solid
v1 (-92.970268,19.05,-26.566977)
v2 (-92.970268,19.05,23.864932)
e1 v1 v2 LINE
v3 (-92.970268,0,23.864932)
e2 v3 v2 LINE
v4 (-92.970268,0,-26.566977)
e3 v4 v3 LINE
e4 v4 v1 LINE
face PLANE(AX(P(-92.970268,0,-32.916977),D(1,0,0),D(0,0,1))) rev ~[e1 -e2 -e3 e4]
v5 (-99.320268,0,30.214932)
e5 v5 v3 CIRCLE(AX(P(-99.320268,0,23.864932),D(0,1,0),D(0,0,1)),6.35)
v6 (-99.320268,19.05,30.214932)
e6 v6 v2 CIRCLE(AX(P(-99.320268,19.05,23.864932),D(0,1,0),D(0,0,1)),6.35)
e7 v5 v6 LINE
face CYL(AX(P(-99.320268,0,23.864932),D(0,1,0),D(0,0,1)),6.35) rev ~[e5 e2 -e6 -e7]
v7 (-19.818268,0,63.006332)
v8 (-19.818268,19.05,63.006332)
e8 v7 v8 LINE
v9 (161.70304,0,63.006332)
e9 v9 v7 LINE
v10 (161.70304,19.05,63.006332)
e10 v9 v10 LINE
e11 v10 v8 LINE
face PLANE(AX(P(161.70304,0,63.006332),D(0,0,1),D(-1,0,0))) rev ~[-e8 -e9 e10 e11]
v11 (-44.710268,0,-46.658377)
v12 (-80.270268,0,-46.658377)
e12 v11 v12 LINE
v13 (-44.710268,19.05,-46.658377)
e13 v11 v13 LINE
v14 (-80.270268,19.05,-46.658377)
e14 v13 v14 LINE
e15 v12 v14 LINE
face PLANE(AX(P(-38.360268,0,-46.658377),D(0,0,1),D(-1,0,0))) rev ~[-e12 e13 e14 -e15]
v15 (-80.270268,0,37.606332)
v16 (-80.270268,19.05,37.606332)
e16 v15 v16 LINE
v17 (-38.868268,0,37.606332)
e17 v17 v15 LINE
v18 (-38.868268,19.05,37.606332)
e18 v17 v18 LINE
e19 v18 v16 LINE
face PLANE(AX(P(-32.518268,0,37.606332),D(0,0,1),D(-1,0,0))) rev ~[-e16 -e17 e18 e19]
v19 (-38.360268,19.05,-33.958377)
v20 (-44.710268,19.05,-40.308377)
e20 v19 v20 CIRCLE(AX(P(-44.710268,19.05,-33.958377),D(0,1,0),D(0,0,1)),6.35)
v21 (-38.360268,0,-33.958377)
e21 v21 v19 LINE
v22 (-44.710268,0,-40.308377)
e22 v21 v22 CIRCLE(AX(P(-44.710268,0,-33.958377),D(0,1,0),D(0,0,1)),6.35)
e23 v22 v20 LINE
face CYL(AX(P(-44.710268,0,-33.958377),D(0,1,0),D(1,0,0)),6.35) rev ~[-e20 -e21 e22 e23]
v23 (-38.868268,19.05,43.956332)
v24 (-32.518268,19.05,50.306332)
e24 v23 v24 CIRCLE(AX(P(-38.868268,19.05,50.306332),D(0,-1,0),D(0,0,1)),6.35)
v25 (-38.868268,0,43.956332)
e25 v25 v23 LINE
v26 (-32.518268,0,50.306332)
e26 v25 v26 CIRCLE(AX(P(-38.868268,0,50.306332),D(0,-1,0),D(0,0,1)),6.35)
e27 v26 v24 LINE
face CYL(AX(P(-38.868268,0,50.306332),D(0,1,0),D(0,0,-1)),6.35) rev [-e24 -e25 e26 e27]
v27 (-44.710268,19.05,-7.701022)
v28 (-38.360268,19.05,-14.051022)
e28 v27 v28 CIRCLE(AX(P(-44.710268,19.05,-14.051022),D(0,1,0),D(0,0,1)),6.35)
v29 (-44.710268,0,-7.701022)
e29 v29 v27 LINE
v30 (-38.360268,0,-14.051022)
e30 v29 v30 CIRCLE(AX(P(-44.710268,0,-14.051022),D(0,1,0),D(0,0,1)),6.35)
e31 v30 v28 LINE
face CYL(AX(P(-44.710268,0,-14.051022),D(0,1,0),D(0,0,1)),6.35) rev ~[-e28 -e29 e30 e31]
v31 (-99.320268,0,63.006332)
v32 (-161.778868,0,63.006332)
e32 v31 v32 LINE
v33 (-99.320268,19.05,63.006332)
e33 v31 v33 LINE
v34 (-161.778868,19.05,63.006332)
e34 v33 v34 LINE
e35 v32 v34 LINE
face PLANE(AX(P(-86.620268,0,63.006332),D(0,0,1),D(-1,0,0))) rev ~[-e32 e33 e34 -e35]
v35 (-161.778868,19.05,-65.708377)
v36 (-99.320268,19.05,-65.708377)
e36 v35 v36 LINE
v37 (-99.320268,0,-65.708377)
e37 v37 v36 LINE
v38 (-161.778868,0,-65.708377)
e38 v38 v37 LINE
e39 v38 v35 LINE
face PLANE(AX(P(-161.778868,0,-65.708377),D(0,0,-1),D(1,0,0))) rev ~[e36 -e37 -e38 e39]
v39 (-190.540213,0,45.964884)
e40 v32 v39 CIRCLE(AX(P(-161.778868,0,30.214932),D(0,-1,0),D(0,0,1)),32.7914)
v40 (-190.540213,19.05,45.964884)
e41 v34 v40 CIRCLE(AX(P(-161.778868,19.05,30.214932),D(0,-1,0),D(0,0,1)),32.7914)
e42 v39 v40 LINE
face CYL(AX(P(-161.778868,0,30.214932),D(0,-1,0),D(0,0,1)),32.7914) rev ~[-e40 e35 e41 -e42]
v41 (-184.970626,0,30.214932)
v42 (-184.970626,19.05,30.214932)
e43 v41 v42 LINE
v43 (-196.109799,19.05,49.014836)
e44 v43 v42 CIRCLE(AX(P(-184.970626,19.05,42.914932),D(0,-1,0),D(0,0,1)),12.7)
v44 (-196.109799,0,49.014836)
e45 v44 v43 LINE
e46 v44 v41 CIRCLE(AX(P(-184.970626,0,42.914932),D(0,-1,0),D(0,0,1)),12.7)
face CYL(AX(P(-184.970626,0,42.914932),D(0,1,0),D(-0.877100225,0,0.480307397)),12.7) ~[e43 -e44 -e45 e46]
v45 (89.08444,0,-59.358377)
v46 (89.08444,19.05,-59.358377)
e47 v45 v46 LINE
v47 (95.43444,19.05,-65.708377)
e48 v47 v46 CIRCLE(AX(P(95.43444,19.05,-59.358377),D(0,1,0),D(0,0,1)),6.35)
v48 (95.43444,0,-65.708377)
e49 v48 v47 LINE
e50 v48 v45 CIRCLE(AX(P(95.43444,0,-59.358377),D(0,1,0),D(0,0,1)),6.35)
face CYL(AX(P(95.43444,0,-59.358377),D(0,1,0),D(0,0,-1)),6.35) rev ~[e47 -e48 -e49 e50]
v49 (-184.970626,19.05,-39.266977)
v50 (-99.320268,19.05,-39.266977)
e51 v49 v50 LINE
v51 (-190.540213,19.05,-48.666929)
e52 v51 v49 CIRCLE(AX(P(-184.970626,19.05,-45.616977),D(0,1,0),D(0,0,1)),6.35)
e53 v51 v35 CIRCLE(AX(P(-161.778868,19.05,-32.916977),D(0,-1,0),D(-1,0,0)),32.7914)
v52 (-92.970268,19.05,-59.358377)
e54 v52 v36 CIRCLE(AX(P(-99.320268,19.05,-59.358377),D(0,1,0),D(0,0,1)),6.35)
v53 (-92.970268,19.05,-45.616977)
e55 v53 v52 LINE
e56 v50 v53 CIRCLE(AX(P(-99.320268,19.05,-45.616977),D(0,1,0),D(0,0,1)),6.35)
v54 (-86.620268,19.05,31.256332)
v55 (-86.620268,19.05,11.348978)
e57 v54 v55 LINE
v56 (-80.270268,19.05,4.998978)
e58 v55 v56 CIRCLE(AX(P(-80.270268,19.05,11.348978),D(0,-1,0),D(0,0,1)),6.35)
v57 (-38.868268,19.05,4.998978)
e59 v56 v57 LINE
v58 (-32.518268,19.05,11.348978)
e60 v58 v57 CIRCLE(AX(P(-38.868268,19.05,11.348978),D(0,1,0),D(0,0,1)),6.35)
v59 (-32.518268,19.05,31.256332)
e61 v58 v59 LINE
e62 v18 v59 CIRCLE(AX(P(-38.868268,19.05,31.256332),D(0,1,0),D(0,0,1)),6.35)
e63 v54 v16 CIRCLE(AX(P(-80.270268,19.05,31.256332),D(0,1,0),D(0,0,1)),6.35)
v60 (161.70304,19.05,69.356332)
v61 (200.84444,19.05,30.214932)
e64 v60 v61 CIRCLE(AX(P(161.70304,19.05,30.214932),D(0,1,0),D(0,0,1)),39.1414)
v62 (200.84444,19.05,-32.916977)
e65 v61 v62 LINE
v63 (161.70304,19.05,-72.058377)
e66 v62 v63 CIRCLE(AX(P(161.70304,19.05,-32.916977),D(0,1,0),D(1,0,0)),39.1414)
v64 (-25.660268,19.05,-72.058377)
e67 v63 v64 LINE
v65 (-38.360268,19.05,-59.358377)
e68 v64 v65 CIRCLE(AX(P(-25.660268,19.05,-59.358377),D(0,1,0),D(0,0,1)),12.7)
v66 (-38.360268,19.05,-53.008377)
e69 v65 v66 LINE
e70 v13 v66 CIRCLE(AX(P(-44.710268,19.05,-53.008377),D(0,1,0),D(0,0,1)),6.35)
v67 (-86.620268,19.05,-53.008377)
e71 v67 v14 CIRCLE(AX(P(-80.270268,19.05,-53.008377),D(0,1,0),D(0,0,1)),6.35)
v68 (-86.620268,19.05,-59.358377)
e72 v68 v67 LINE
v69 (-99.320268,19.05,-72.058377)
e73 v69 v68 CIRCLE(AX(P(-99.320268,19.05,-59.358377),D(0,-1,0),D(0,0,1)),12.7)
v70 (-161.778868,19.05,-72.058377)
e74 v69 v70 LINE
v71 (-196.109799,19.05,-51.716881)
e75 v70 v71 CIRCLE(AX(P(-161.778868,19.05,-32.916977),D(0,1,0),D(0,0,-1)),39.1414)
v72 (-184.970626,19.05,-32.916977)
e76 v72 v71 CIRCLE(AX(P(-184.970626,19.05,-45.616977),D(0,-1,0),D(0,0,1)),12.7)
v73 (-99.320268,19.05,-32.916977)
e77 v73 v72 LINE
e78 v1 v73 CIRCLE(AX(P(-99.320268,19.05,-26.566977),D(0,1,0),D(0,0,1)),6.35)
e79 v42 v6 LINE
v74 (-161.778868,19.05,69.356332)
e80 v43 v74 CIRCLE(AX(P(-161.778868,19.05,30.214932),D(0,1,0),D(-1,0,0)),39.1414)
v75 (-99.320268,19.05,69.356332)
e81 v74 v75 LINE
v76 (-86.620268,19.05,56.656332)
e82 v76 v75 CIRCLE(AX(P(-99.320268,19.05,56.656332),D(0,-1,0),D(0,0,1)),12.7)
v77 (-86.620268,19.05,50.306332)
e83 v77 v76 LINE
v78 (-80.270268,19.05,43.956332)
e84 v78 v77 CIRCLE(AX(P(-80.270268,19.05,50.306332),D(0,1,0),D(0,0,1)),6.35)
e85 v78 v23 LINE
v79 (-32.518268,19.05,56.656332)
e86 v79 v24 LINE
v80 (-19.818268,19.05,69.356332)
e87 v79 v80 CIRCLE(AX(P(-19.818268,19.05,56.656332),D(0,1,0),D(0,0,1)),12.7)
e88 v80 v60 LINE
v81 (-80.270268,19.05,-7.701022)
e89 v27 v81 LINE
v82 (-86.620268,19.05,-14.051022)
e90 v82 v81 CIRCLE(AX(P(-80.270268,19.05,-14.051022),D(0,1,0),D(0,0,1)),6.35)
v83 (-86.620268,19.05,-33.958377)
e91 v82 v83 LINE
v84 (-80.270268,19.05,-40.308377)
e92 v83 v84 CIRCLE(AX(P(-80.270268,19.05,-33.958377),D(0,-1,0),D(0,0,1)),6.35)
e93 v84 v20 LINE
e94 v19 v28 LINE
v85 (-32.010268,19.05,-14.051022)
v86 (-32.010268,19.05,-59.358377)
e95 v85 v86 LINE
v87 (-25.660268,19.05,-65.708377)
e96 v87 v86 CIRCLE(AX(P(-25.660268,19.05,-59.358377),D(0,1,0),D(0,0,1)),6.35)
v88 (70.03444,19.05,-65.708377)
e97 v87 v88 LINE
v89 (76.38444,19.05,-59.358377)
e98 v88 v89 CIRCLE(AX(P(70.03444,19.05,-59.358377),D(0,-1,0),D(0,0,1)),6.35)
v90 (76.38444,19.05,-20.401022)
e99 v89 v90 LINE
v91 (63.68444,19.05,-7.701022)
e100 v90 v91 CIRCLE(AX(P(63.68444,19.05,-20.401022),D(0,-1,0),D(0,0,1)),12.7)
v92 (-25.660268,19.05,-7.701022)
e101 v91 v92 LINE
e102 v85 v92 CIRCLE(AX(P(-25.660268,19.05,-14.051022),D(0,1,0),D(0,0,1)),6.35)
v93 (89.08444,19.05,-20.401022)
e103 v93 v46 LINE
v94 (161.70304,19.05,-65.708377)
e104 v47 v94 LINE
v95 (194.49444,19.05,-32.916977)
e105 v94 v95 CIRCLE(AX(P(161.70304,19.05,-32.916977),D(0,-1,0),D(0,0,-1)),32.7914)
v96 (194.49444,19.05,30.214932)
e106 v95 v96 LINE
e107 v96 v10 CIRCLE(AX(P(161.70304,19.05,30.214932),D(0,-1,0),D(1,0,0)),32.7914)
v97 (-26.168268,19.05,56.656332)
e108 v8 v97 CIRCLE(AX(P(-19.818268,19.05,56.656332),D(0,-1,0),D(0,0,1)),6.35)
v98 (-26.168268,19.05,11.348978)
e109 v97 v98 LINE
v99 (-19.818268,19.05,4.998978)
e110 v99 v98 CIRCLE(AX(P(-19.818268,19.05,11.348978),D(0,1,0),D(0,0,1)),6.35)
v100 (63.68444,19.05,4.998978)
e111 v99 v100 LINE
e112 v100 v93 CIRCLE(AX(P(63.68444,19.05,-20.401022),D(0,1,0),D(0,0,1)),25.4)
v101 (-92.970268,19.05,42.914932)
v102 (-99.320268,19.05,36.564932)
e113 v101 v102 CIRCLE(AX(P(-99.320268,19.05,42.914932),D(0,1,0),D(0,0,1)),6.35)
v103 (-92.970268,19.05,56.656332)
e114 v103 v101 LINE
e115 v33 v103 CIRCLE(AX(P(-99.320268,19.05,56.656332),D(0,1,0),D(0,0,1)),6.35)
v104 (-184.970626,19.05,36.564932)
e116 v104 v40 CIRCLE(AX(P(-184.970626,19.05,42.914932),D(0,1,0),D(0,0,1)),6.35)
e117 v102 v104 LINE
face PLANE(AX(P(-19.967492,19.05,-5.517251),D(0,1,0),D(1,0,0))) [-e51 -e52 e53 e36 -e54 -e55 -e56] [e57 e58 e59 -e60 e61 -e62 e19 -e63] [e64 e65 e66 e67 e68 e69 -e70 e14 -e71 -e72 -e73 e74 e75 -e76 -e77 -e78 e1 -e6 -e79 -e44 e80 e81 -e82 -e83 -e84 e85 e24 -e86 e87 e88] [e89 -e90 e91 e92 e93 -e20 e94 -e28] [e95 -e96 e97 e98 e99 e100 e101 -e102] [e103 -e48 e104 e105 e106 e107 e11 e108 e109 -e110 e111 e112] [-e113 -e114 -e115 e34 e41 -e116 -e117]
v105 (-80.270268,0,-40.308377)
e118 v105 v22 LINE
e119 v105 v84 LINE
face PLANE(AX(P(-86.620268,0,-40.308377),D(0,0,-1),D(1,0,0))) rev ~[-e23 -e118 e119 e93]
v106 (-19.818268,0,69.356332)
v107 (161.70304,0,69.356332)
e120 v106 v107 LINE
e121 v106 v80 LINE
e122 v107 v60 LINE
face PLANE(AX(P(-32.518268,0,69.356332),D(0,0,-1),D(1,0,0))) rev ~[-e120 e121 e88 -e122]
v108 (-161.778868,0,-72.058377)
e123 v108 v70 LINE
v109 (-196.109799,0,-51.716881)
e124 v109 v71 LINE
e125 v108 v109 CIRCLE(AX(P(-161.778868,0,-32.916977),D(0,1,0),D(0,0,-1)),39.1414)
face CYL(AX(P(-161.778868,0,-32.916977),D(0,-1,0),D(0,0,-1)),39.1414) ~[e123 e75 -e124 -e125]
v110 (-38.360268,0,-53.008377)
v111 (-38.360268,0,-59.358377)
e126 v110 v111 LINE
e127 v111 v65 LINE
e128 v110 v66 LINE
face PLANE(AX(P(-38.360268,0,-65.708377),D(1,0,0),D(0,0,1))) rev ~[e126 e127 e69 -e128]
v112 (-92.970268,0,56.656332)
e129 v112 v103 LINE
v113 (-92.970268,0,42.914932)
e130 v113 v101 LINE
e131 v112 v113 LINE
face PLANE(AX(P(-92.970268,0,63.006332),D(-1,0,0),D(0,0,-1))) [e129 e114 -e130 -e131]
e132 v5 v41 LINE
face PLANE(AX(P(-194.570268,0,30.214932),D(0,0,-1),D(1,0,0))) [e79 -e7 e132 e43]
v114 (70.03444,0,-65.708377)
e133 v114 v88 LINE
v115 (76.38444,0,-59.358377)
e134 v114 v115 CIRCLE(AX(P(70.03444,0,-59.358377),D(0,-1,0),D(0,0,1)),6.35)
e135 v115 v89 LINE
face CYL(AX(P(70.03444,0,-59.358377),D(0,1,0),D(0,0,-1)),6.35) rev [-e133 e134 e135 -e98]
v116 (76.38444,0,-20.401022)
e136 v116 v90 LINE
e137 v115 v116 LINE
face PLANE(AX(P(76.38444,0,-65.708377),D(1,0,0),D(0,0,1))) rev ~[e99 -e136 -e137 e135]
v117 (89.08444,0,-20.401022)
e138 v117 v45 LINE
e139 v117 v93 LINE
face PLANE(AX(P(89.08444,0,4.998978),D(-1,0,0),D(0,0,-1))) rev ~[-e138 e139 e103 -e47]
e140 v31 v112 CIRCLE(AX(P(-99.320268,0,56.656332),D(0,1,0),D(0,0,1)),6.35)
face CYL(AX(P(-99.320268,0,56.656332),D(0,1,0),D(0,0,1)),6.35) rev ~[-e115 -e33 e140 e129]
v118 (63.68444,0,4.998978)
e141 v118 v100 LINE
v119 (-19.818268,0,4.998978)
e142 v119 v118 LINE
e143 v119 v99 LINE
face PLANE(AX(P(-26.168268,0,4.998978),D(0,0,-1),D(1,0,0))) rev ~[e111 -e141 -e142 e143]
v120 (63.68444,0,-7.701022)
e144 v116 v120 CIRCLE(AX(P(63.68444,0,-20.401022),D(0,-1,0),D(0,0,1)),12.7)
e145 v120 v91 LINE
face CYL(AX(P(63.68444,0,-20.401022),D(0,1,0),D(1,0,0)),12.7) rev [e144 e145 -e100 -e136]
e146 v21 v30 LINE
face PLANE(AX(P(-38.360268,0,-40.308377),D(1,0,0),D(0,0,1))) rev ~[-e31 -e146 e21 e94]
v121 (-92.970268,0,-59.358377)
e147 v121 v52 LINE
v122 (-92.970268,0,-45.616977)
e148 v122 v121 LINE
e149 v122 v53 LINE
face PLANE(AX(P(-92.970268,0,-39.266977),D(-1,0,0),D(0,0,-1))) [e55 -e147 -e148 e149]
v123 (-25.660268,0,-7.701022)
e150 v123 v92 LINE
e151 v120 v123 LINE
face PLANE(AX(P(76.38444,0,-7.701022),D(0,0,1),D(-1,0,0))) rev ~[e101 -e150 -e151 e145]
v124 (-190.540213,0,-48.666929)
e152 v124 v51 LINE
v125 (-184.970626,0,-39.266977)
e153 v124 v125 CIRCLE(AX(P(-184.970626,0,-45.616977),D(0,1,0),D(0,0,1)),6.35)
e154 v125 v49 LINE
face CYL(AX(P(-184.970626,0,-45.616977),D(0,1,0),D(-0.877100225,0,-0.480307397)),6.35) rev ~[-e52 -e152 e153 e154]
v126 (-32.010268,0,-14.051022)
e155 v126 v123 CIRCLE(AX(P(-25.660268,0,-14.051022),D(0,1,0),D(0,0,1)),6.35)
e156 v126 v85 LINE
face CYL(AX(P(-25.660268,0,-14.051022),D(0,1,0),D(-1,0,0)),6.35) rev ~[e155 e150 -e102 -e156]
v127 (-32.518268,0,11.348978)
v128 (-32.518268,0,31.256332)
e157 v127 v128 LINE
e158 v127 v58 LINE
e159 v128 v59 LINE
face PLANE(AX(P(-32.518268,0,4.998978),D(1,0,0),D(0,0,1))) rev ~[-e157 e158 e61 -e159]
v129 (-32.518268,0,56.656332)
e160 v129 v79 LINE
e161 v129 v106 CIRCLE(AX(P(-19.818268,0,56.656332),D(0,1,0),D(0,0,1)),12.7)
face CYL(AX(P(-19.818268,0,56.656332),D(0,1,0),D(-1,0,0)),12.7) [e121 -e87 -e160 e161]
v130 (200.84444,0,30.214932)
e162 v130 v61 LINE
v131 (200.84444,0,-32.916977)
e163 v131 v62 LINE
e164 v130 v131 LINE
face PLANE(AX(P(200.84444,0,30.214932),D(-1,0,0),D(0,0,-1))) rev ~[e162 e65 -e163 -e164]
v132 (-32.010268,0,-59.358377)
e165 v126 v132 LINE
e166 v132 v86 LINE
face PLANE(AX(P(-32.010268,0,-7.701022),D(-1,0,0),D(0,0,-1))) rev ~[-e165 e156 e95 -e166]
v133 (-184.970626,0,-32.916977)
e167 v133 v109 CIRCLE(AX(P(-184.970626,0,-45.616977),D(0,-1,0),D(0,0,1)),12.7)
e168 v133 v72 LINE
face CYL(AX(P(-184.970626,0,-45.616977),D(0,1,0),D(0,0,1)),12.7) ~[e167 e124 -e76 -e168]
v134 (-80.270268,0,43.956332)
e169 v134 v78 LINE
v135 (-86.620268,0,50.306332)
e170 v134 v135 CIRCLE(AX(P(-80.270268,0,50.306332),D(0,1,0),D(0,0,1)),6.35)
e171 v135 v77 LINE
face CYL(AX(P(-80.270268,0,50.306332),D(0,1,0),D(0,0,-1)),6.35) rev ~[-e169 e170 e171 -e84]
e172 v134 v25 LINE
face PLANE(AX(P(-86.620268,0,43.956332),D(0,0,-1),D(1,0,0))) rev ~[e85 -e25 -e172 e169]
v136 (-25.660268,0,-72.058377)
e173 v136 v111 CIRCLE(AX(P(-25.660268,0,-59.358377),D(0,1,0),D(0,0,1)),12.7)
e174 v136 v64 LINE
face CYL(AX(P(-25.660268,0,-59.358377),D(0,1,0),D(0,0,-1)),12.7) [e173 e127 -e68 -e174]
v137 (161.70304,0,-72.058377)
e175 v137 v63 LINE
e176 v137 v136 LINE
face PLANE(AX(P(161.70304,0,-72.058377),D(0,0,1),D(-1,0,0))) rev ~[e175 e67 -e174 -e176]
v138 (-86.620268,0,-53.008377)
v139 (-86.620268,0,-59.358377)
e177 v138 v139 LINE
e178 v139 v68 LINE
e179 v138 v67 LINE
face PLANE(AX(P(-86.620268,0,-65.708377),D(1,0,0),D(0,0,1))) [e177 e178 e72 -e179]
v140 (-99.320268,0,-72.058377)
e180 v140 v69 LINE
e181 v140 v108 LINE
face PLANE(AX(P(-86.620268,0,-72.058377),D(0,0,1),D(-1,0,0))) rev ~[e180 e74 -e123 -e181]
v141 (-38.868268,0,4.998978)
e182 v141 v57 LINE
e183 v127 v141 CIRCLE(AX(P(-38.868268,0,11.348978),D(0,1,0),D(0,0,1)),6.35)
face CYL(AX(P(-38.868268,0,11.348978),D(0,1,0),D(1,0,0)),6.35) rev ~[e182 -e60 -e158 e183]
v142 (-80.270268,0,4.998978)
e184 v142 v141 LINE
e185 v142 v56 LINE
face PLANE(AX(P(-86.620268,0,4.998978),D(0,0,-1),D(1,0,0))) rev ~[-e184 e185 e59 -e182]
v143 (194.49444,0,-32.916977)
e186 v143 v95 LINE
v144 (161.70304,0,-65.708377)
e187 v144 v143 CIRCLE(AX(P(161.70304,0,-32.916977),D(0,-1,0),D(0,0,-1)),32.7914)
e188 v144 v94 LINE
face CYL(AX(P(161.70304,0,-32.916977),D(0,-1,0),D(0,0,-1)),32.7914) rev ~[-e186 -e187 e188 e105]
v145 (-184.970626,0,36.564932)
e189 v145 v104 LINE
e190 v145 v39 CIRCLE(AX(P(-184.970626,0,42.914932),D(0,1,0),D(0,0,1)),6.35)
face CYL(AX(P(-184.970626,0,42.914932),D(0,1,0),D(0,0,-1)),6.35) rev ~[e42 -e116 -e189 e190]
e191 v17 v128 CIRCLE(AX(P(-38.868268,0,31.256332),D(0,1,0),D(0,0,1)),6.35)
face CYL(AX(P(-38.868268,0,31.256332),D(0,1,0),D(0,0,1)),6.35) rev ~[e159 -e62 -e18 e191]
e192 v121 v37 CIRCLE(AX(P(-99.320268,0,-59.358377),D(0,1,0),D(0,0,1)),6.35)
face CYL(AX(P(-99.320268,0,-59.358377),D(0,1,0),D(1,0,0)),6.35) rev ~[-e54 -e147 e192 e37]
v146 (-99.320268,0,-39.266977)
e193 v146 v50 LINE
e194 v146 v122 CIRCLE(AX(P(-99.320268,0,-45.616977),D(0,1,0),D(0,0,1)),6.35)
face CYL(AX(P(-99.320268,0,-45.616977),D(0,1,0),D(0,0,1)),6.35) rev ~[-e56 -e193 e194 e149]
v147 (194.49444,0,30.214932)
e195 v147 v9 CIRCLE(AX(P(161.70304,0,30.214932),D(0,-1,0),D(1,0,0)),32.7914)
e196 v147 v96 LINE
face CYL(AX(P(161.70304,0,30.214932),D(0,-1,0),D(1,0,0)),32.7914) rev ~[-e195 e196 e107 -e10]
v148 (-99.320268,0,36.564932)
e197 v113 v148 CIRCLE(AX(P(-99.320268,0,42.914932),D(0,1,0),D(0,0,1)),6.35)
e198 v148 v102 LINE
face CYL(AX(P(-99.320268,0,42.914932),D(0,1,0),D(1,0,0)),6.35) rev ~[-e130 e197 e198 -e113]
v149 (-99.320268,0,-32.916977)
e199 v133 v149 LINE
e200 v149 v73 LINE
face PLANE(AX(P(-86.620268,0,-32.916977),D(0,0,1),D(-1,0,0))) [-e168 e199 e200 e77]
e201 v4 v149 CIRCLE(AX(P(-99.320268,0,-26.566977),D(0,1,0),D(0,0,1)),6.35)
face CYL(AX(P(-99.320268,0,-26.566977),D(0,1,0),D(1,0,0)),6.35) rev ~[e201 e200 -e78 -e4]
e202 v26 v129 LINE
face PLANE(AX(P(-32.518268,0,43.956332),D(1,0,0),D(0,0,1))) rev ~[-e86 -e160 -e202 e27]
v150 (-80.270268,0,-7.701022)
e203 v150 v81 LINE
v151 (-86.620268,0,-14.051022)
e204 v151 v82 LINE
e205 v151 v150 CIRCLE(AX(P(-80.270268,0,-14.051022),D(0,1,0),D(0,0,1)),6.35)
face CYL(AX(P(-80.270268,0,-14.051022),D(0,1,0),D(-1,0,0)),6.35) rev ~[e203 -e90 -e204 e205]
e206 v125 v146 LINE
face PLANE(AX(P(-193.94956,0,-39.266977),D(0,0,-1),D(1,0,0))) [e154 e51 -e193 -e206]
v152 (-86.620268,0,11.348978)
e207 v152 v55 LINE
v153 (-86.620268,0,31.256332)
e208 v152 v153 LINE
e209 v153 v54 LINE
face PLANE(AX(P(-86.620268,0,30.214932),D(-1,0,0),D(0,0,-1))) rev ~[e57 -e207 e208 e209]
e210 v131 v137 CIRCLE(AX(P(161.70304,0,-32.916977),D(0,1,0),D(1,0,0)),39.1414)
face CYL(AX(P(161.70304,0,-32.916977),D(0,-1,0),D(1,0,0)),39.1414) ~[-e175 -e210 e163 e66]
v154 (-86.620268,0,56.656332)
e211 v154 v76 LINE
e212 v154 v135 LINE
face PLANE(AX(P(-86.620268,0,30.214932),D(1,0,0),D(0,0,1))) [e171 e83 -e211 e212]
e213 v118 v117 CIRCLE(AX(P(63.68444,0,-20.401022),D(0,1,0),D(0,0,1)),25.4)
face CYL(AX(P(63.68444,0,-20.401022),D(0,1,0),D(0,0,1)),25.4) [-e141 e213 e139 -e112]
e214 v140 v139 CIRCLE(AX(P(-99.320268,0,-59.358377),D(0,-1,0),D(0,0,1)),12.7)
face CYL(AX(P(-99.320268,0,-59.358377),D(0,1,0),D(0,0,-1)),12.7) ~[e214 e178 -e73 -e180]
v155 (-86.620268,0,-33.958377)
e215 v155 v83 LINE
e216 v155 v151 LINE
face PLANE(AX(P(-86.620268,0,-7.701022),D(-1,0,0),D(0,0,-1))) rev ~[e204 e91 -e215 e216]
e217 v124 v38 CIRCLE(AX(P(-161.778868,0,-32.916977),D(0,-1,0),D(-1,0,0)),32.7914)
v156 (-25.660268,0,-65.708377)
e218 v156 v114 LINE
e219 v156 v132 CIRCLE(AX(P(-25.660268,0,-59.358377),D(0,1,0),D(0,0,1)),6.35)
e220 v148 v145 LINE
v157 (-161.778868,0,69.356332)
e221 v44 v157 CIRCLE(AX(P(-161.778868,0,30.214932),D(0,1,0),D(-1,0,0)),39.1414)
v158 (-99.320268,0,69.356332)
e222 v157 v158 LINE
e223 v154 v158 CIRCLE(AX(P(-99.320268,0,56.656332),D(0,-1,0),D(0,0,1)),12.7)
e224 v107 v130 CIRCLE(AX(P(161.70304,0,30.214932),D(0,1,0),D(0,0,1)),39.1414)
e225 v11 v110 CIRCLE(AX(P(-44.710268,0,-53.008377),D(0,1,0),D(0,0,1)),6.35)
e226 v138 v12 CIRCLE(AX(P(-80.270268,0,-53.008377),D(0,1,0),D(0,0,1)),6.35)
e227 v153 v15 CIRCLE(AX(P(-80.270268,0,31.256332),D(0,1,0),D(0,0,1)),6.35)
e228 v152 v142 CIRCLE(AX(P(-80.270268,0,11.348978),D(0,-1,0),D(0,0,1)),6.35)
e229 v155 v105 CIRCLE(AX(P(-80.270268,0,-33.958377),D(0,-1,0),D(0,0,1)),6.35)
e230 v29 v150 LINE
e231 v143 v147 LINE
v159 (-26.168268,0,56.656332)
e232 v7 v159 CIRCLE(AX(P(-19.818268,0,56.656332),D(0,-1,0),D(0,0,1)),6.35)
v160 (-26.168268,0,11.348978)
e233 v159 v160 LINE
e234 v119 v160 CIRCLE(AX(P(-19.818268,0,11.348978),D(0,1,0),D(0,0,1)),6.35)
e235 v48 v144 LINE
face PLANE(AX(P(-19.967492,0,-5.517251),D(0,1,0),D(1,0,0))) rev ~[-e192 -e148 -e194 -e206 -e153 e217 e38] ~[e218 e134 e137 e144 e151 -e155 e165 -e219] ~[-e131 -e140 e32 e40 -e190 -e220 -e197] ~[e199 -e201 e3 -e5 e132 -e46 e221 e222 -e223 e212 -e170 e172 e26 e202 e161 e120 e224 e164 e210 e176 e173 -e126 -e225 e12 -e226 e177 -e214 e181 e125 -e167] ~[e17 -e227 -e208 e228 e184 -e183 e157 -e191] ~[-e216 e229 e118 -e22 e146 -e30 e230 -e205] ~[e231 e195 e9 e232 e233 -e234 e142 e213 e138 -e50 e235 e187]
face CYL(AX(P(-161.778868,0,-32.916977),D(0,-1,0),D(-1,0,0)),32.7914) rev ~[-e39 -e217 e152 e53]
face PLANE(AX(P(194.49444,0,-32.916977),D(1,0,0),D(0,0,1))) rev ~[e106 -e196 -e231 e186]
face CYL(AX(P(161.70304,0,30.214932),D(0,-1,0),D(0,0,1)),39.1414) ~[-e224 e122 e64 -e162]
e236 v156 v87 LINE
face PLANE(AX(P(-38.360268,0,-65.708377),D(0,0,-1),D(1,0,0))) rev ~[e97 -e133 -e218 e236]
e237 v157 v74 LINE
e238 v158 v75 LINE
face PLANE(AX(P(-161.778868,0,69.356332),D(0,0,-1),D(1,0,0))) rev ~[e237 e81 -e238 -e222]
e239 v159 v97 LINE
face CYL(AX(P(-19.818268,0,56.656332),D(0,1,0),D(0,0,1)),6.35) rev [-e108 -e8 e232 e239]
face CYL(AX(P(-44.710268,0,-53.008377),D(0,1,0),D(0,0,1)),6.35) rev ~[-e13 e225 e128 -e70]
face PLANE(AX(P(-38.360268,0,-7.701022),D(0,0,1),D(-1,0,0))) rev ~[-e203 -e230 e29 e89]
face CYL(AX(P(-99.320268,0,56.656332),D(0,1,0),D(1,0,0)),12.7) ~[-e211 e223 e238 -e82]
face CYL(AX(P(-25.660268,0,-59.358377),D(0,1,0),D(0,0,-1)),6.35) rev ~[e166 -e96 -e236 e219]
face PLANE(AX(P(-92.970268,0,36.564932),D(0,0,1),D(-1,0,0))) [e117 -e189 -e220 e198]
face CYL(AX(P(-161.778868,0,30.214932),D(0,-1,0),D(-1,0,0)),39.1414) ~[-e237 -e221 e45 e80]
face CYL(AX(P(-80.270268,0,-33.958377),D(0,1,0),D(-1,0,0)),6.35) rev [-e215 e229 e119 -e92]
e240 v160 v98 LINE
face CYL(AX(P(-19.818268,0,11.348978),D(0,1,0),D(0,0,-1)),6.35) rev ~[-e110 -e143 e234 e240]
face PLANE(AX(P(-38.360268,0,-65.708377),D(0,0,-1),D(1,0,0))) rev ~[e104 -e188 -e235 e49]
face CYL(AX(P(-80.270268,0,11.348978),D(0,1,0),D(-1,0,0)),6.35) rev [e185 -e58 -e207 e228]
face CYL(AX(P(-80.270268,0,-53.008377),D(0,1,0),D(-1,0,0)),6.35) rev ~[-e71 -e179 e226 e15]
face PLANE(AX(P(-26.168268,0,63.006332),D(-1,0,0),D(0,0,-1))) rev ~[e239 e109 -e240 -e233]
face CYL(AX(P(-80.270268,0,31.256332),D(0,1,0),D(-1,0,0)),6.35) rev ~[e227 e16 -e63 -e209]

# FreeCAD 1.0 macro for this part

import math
import FreeCAD as App
import Part
import Sketcher
from FreeCAD import Vector
Q = App.Units.Quantity


def edges_at(feature, points):
    """Names of the edges that pass closest to the given points."""
    edges = feature.Shape.Edges
    near = lambda p: min(range(len(edges)), key=lambda i: edges[i].distToShape(Part.Vertex(*p))[0])
    return sorted({f"Edge{near(p) + 1}" for p in points})

doc = App.newDocument("Part")
body = doc.addObject("PartDesign::Body", "Body")
body.AllowCompound = True

# Sketch on XZ plane
sketch1 = body.newObject("Sketcher::SketchObject", "Sketch")
sketch1.AttachmentSupport = (doc.getObject("XZ_Plane"), [""])
sketch1.MapMode = "FlatFace"
sketch1.addGeometry([
    Part.LineSegment(Vector(-200.920268, -32.916977, 0), Vector(-200.920268, 30.214932, 0)),  # 0
    Part.ArcOfCircle(Part.Circle(Vector(-161.778868, 30.214932, 0), Vector(0, 0, 1), 39.1414), math.radians(90), math.radians(180)),  # 1
    Part.LineSegment(Vector(-161.778868, 69.356332, 0), Vector(-86.620268, 69.356332, 0)),  # 2
    Part.LineSegment(Vector(-86.620268, 69.356332, 0), Vector(-86.620268, 63.006332, 0)),  # 3
    Part.LineSegment(Vector(-86.620268, 63.006332, 0), Vector(-161.778868, 63.006332, 0)),  # 4
    Part.ArcOfCircle(Part.Circle(Vector(-161.778868, 30.214932, 0), Vector(0, 0, 1), 32.7914), math.radians(90), math.radians(180)),  # 5
    Part.LineSegment(Vector(-194.570268, 30.214932, 0), Vector(-194.570268, -32.916977, 0)),  # 6
    Part.ArcOfCircle(Part.Circle(Vector(-161.778868, -32.916977, 0), Vector(0, 0, 1), 32.7914), math.radians(180), math.radians(270)),  # 7
    Part.LineSegment(Vector(-161.778868, -65.708377, 0), Vector(-86.620268, -65.708377, 0)),  # 8
    Part.LineSegment(Vector(-86.620268, -65.708377, 0), Vector(-86.620268, -72.058377, 0)),  # 9
    Part.LineSegment(Vector(-86.620268, -72.058377, 0), Vector(-161.778868, -72.058377, 0)),  # 10
    Part.ArcOfCircle(Part.Circle(Vector(-161.778868, -32.916977, 0), Vector(0, 0, 1), 39.1414), math.radians(180), math.radians(270)),  # 11
], False)
sketch1.addConstraint([
    Sketcher.Constraint("Tangent", 0, 2, 1, 2),
    Sketcher.Constraint("Tangent", 1, 1, 2, 1),
    Sketcher.Constraint("Coincident", 2, 2, 3, 1),
    Sketcher.Constraint("Coincident", 3, 2, 4, 1),
    Sketcher.Constraint("Tangent", 4, 2, 5, 1),
    Sketcher.Constraint("Tangent", 5, 2, 6, 1),
    Sketcher.Constraint("Tangent", 6, 2, 7, 1),
    Sketcher.Constraint("Tangent", 7, 2, 8, 1),
    Sketcher.Constraint("Coincident", 8, 2, 9, 1),
    Sketcher.Constraint("Coincident", 9, 2, 10, 1),
    Sketcher.Constraint("Tangent", 10, 2, 11, 2),
    Sketcher.Constraint("Tangent", 11, 1, 0, 1),
    Sketcher.Constraint("Vertical", 0),
    Sketcher.Constraint("Horizontal", 2),
    Sketcher.Constraint("Vertical", 3),
    Sketcher.Constraint("Horizontal", 4),
    Sketcher.Constraint("Vertical", 6),
    Sketcher.Constraint("Horizontal", 8),
    Sketcher.Constraint("Vertical", 9),
    Sketcher.Constraint("Horizontal", 10),
    Sketcher.Constraint("Coincident", 5, 3, 1, 3),
    Sketcher.Constraint("Coincident", 11, 3, 7, 3),
    Sketcher.Constraint("Equal", 5, 7),
    Sketcher.Constraint("Vertical", 3, 2, 8, 2),
    Sketcher.Constraint("Radius", 1, Q("1.541 in")),
    Sketcher.Constraint("Radius", 5, Q("1.291 in")),
    Sketcher.Constraint("DistanceX", 0, 2, 2, 2, Q("4.5 in")),
    Sketcher.Constraint("DistanceY", 0, 1, 0, 2, Q("63.131908 mm")),
    Sketcher.Constraint("DistanceX", 1, 3, -1, 1, Q("161.778868 mm")),
    Sketcher.Constraint("DistanceY", -1, 1, 1, 3, Q("30.214932 mm")),
])
pad1 = body.newObject("PartDesign::Pad", "Pad")
pad1.Profile = sketch1
pad1.Length = Q("0.75 in")
pad1.Reversed = True

# Sketch on XZ plane
sketch2 = body.newObject("Sketcher::SketchObject", "Sketch001")
sketch2.AttachmentSupport = (doc.getObject("XZ_Plane"), [""])
sketch2.MapMode = "FlatFace"
sketch2.AttachmentOffset = App.Placement(Vector(0, 0, -0.75 * 25.4), App.Rotation())
sketch2.addGeometry([
    Part.LineSegment(Vector(-200.920268, -32.916977, 0), Vector(-200.920268, 30.214932, 0)),
    Part.LineSegment(Vector(-200.920268, 30.214932, 0), Vector(-194.570268, 30.214932, 0)),
    Part.LineSegment(Vector(-194.570268, 30.214932, 0), Vector(-194.570268, -32.916977, 0)),
    Part.LineSegment(Vector(-194.570268, -32.916977, 0), Vector(-200.920268, -32.916977, 0)),
], False)
sketch2.addConstraint([
    Sketcher.Constraint("Coincident", 0, 2, 1, 1),
    Sketcher.Constraint("Coincident", 1, 2, 2, 1),
    Sketcher.Constraint("Coincident", 2, 2, 3, 1),
    Sketcher.Constraint("Coincident", 3, 2, 0, 1),
    Sketcher.Constraint("Vertical", 0),
    Sketcher.Constraint("Horizontal", 1),
    Sketcher.Constraint("Vertical", 2),
    Sketcher.Constraint("Horizontal", 3),
    Sketcher.Constraint("DistanceX", 1, 1, 1, 2, Q("0.25 in")),
    Sketcher.Constraint("DistanceY", 0, 1, 0, 2, Q("63.131908 mm")),
    Sketcher.Constraint("DistanceX", 0, 2, -1, 1, Q("200.920268 mm")),
    Sketcher.Constraint("DistanceY", -1, 1, 0, 2, Q("30.214932 mm")),
])
pocket1 = body.newObject("PartDesign::Pocket", "Pocket")
pocket1.Profile = sketch2
pocket1.Length = Q("0.75 in")
pocket1.Reversed = True

# Sketch on XZ plane
sketch3 = body.newObject("Sketcher::SketchObject", "Sketch002")
sketch3.AttachmentSupport = (doc.getObject("XZ_Plane"), [""])
sketch3.MapMode = "FlatFace"
sketch3.addGeometry([
    Part.LineSegment(Vector(-86.620268, 30.214932, 0), Vector(-194.570268, 30.214932, 0)),  # 0
    Part.ArcOfCircle(Part.Circle(Vector(-161.778868, 30.214932, 0), Vector(0, 0, 1), 32.7914), math.radians(168.834226), math.radians(180)),  # 1
    Part.LineSegment(Vector(-193.94956, 36.564932, 0), Vector(-92.970268, 36.564932, 0)),  # 2
    Part.LineSegment(Vector(-92.970268, 36.564932, 0), Vector(-92.970268, 63.006332, 0)),  # 3
    Part.LineSegment(Vector(-92.970268, 63.006332, 0), Vector(-86.620268, 63.006332, 0)),  # 4
    Part.LineSegment(Vector(-86.620268, 63.006332, 0), Vector(-86.620268, 30.214932, 0)),  # 5
    Part.LineSegment(Vector(-86.620268, -65.708377, 0), Vector(-92.970268, -65.708377, 0)),  # 6
    Part.LineSegment(Vector(-92.970268, -65.708377, 0), Vector(-92.970268, -39.266977, 0)),  # 7
    Part.LineSegment(Vector(-92.970268, -39.266977, 0), Vector(-193.94956, -39.266977, 0)),  # 8
    Part.ArcOfCircle(Part.Circle(Vector(-161.778868, -32.916977, 0), Vector(0, 0, 1), 32.7914), math.radians(180), math.radians(191.165774)),  # 9
    Part.LineSegment(Vector(-194.570268, -32.916977, 0), Vector(-86.620268, -32.916977, 0)),  # 10
    Part.LineSegment(Vector(-86.620268, -32.916977, 0), Vector(-86.620268, -65.708377, 0)),  # 11
], False)
sketch3.addConstraint([
    Sketcher.Constraint("Coincident", 0, 2, 1, 2),
    Sketcher.Constraint("Coincident", 1, 1, 2, 1),
    Sketcher.Constraint("Coincident", 2, 2, 3, 1),
    Sketcher.Constraint("Coincident", 3, 2, 4, 1),
    Sketcher.Constraint("Coincident", 4, 2, 5, 1),
    Sketcher.Constraint("Coincident", 5, 2, 0, 1),
    Sketcher.Constraint("Coincident", 6, 2, 7, 1),
    Sketcher.Constraint("Coincident", 7, 2, 8, 1),
    Sketcher.Constraint("Coincident", 8, 2, 9, 2),
    Sketcher.Constraint("Coincident", 9, 1, 10, 1),
    Sketcher.Constraint("Coincident", 10, 2, 11, 1),
    Sketcher.Constraint("Coincident", 11, 2, 6, 1),
    Sketcher.Constraint("Horizontal", 0),
    Sketcher.Constraint("Horizontal", 2),
    Sketcher.Constraint("Vertical", 3),
    Sketcher.Constraint("Horizontal", 4),
    Sketcher.Constraint("Vertical", 5),
    Sketcher.Constraint("Horizontal", 6),
    Sketcher.Constraint("Vertical", 7),
    Sketcher.Constraint("Horizontal", 8),
    Sketcher.Constraint("Horizontal", 10),
    Sketcher.Constraint("Vertical", 11),
    Sketcher.Constraint("Equal", 1, 9),
    Sketcher.Constraint("Horizontal", 1, 3, 0, 2),
    Sketcher.Constraint("Vertical", 1, 3, 9, 3),
    Sketcher.Constraint("Vertical", 3, 2, 6, 2),
    Sketcher.Constraint("Vertical", 1, 1, 8, 2),
    Sketcher.Constraint("Vertical", 5, 2, 10, 2),
    Sketcher.Constraint("Equal", 3, 7),
    Sketcher.Constraint("Equal", 5, 11),
    Sketcher.Constraint("Radius", 1, Q("1.291 in")),
    Sketcher.Constraint("DistanceX", 0, 2, 2, 2, Q("4 in")),
    Sketcher.Constraint("DistanceX", 0, 2, 0, 1, Q("4.25 in")),
    Sketcher.Constraint("DistanceY", 3, 1, 3, 2, Q("1.041 in")),
    Sketcher.Constraint("DistanceY", 5, 2, 5, 1, Q("1.291 in")),
    Sketcher.Constraint("DistanceX", 1, 3, -1, 1, Q("161.778868 mm")),
    Sketcher.Constraint("DistanceY", -1, 1, 1, 3, Q("30.214932 mm")),
    Sketcher.Constraint("DistanceY", 9, 3, 1, 3, Q("63.131908 mm")),
])
pad2 = body.newObject("PartDesign::Pad", "Pad001")
pad2.Profile = sketch3
pad2.Length = Q("0.75 in")
pad2.Reversed = True
body2 = doc.addObject("PartDesign::Body", "Body001")

# Sketch on XZ plane
sketch4 = body2.newObject("Sketcher::SketchObject", "Sketch003")
sketch4.AttachmentSupport = (doc.getObject("XZ_Plane001"), [""])
sketch4.MapMode = "FlatFace"
sketch4.addGeometry([
    Part.LineSegment(Vector(200.84444, 30.214932, 0), Vector(200.84444, -32.916977, 0)),  # 0
    Part.ArcOfCircle(Part.Circle(Vector(161.70304, -32.916977, 0), Vector(0, 0, 1), 39.1414), math.radians(-90), math.radians(0)),  # 1
    Part.LineSegment(Vector(161.70304, -72.058377, 0), Vector(-38.360268, -72.058377, 0)),  # 2
    Part.LineSegment(Vector(-38.360268, -72.058377, 0), Vector(-38.360268, -65.708377, 0)),  # 3
    Part.LineSegment(Vector(-38.360268, -65.708377, 0), Vector(161.70304, -65.708377, 0)),  # 4
    Part.ArcOfCircle(Part.Circle(Vector(161.70304, -32.916977, 0), Vector(0, 0, 1), 32.7914), math.radians(-90), math.radians(0)),  # 5
    Part.LineSegment(Vector(194.49444, -32.916977, 0), Vector(194.49444, 30.214932, 0)),  # 6
    Part.ArcOfCircle(Part.Circle(Vector(161.70304, 30.214932, 0), Vector(0, 0, 1), 32.7914), math.radians(0), math.radians(90)),  # 7
    Part.LineSegment(Vector(161.70304, 63.006332, 0), Vector(-32.518268, 63.006332, 0)),  # 8
    Part.LineSegment(Vector(-32.518268, 63.006332, 0), Vector(-32.518268, 69.356332, 0)),  # 9
    Part.LineSegment(Vector(-32.518268, 69.356332, 0), Vector(161.70304, 69.356332, 0)),  # 10
    Part.ArcOfCircle(Part.Circle(Vector(161.70304, 30.214932, 0), Vector(0, 0, 1), 39.1414), math.radians(0), math.radians(90)),  # 11
], False)
sketch4.addConstraint([
    Sketcher.Constraint("Tangent", 0, 2, 1, 2),
    Sketcher.Constraint("Tangent", 1, 1, 2, 1),
    Sketcher.Constraint("Coincident", 2, 2, 3, 1),
    Sketcher.Constraint("Coincident", 3, 2, 4, 1),
    Sketcher.Constraint("Tangent", 4, 2, 5, 1),
    Sketcher.Constraint("Tangent", 5, 2, 6, 1),
    Sketcher.Constraint("Tangent", 6, 2, 7, 1),
    Sketcher.Constraint("Tangent", 7, 2, 8, 1),
    Sketcher.Constraint("Coincident", 8, 2, 9, 1),
    Sketcher.Constraint("Coincident", 9, 2, 10, 1),
    Sketcher.Constraint("Tangent", 10, 2, 11, 2),
    Sketcher.Constraint("Tangent", 11, 1, 0, 1),
    Sketcher.Constraint("Vertical", 0),
    Sketcher.Constraint("Horizontal", 2),
    Sketcher.Constraint("Vertical", 3),
    Sketcher.Constraint("Horizontal", 4),
    Sketcher.Constraint("Vertical", 6),
    Sketcher.Constraint("Horizontal", 8),
    Sketcher.Constraint("Vertical", 9),
    Sketcher.Constraint("Horizontal", 10),
    Sketcher.Constraint("Coincident", 5, 3, 1, 3),
    Sketcher.Constraint("Coincident", 11, 3, 7, 3),
    Sketcher.Constraint("Equal", 5, 7),
    Sketcher.Constraint("Radius", 1, Q("1.541 in")),
    Sketcher.Constraint("Radius", 5, Q("1.291 in")),
    Sketcher.Constraint("DistanceX", 3, 2, 8, 2, Q("0.23 in")),
    Sketcher.Constraint("DistanceX", 2, 2, 2, 1, Q("200.063308 mm")),
    Sketcher.Constraint("DistanceY", 0, 2, 0, 1, Q("63.131908 mm")),
    Sketcher.Constraint("DistanceX", -1, 1, 1, 3, Q("161.70304 mm")),
    Sketcher.Constraint("DistanceY", -1, 1, 7, 3, Q("30.214932 mm")),
])
pad3 = body2.newObject("PartDesign::Pad", "Pad002")
pad3.Profile = sketch4
pad3.Length = Q("0.75 in")
pad3.Reversed = True
body.AllowCompound = True
doc.recompute()

boolean = body.newObject("PartDesign::Boolean", "Boolean")
boolean.Type = "Fuse"
boolean.addObjects([body2])

# Sketch on XZ plane
sketch5 = body.newObject("Sketcher::SketchObject", "Sketch004")
sketch5.AttachmentSupport = (doc.getObject("XZ_Plane"), [""])
sketch5.MapMode = "FlatFace"
sketch5.addGeometry([
    Part.LineSegment(Vector(-86.620268, 43.956332, 0), Vector(-32.518268, 43.956332, 0)),  # 0
    Part.LineSegment(Vector(-32.518268, 43.956332, 0), Vector(-32.518268, 63.006332, 0)),  # 1
    Part.LineSegment(Vector(-32.518268, 63.006332, 0), Vector(-26.168268, 63.006332, 0)),  # 2
    Part.LineSegment(Vector(-26.168268, 63.006332, 0), Vector(-26.168268, 4.998978, 0)),  # 3
    Part.LineSegment(Vector(-26.168268, 4.998978, 0), Vector(89.08444, 4.998978, 0)),  # 4
    Part.LineSegment(Vector(89.08444, 4.998978, 0), Vector(89.08444, -65.708377, 0)),  # 5
    Part.LineSegment(Vector(89.08444, -65.708377, 0), Vector(76.38444, -65.708377, 0)),  # 6
    Part.LineSegment(Vector(76.38444, -65.708377, 0), Vector(76.38444, -7.701022, 0)),  # 7
    Part.LineSegment(Vector(76.38444, -7.701022, 0), Vector(-32.010268, -7.701022, 0)),  # 8
    Part.LineSegment(Vector(-32.010268, -7.701022, 0), Vector(-32.010268, -65.708377, 0)),  # 9
    Part.LineSegment(Vector(-32.010268, -65.708377, 0), Vector(-38.360268, -65.708377, 0)),  # 10
    Part.LineSegment(Vector(-38.360268, -65.708377, 0), Vector(-38.360268, -46.658377, 0)),  # 11
    Part.LineSegment(Vector(-38.360268, -46.658377, 0), Vector(-86.620268, -46.658377, 0)),  # 12
    Part.LineSegment(Vector(-86.620268, -46.658377, 0), Vector(-86.620268, -40.308377, 0)),  # 13
    Part.LineSegment(Vector(-86.620268, -40.308377, 0), Vector(-38.360268, -40.308377, 0)),  # 14
    Part.LineSegment(Vector(-38.360268, -40.308377, 0), Vector(-38.360268, -7.701022, 0)),  # 15
    Part.LineSegment(Vector(-38.360268, -7.701022, 0), Vector(-86.620268, -7.701022, 0)),  # 16
    Part.LineSegment(Vector(-86.620268, -7.701022, 0), Vector(-86.620268, -32.916977, 0)),  # 17
    Part.LineSegment(Vector(-86.620268, -32.916977, 0), Vector(-92.970268, -32.916977, 0)),  # 18
    Part.LineSegment(Vector(-92.970268, -32.916977, 0), Vector(-92.970268, 30.214932, 0)),  # 19
    Part.LineSegment(Vector(-92.970268, 30.214932, 0), Vector(-86.620268, 30.214932, 0)),  # 20
    Part.LineSegment(Vector(-86.620268, 30.214932, 0), Vector(-86.620268, 4.998978, 0)),  # 21
    Part.LineSegment(Vector(-86.620268, 4.998978, 0), Vector(-32.518268, 4.998978, 0)),  # 22
    Part.LineSegment(Vector(-32.518268, 4.998978, 0), Vector(-32.518268, 37.606332, 0)),  # 23
    Part.LineSegment(Vector(-32.518268, 37.606332, 0), Vector(-86.620268, 37.606332, 0)),  # 24
    Part.LineSegment(Vector(-86.620268, 37.606332, 0), Vector(-86.620268, 43.956332, 0)),  # 25
], False)
sketch5.addConstraint([
    Sketcher.Constraint("Coincident", 0, 2, 1, 1),
    Sketcher.Constraint("Coincident", 1, 2, 2, 1),
    Sketcher.Constraint("Coincident", 2, 2, 3, 1),
    Sketcher.Constraint("Coincident", 3, 2, 4, 1),
    Sketcher.Constraint("Coincident", 4, 2, 5, 1),
    Sketcher.Constraint("Coincident", 5, 2, 6, 1),
    Sketcher.Constraint("Coincident", 6, 2, 7, 1),
    Sketcher.Constraint("Coincident", 7, 2, 8, 1),
    Sketcher.Constraint("Coincident", 8, 2, 9, 1),
    Sketcher.Constraint("Coincident", 9, 2, 10, 1),
    Sketcher.Constraint("Coincident", 10, 2, 11, 1),
    Sketcher.Constraint("Coincident", 11, 2, 12, 1),
    Sketcher.Constraint("Coincident", 12, 2, 13, 1),
    Sketcher.Constraint("Coincident", 13, 2, 14, 1),
    Sketcher.Constraint("Coincident", 14, 2, 15, 1),
    Sketcher.Constraint("Coincident", 15, 2, 16, 1),
    Sketcher.Constraint("Coincident", 16, 2, 17, 1),
    Sketcher.Constraint("Coincident", 17, 2, 18, 1),
    Sketcher.Constraint("Coincident", 18, 2, 19, 1),
    Sketcher.Constraint("Coincident", 19, 2, 20, 1),
    Sketcher.Constraint("Coincident", 20, 2, 21, 1),
    Sketcher.Constraint("Coincident", 21, 2, 22, 1),
    Sketcher.Constraint("Coincident", 22, 2, 23, 1),
    Sketcher.Constraint("Coincident", 23, 2, 24, 1),
    Sketcher.Constraint("Coincident", 24, 2, 25, 1),
    Sketcher.Constraint("Coincident", 25, 2, 0, 1),
    Sketcher.Constraint("Horizontal", 0),
    Sketcher.Constraint("Vertical", 1),
    Sketcher.Constraint("Horizontal", 2),
    Sketcher.Constraint("Vertical", 3),
    Sketcher.Constraint("Horizontal", 4),
    Sketcher.Constraint("Vertical", 5),
    Sketcher.Constraint("Horizontal", 6),
    Sketcher.Constraint("Vertical", 7),
    Sketcher.Constraint("Horizontal", 8),
    Sketcher.Constraint("Vertical", 9),
    Sketcher.Constraint("Horizontal", 10),
    Sketcher.Constraint("Vertical", 11),
    Sketcher.Constraint("Horizontal", 12),
    Sketcher.Constraint("Vertical", 13),
    Sketcher.Constraint("Horizontal", 14),
    Sketcher.Constraint("Vertical", 15),
    Sketcher.Constraint("Horizontal", 16),
    Sketcher.Constraint("Vertical", 17),
    Sketcher.Constraint("Horizontal", 18),
    Sketcher.Constraint("Vertical", 19),
    Sketcher.Constraint("Horizontal", 20),
    Sketcher.Constraint("Vertical", 21),
    Sketcher.Constraint("Horizontal", 22),
    Sketcher.Constraint("Vertical", 23),
    Sketcher.Constraint("Horizontal", 24),
    Sketcher.Constraint("Vertical", 25),
    Sketcher.Constraint("Horizontal", 6, 2, 9, 2),
    Sketcher.Constraint("Horizontal", 8, 2, 15, 2),
    Sketcher.Constraint("Horizontal", 4, 2, 21, 2),
    Sketcher.Constraint("Vertical", 11, 2, 14, 2),
    Sketcher.Constraint("Vertical", 13, 2, 16, 2),
    Sketcher.Constraint("Vertical", 17, 2, 20, 2),
    Sketcher.Constraint("Vertical", 1, 2, 22, 2),
    Sketcher.Constraint("Vertical", 21, 2, 24, 2),
    Sketcher.Constraint("Equal", 2, 10),
    Sketcher.Constraint("Equal", 10, 18),
    Sketcher.Constraint("Equal", 3, 7),
    Sketcher.Constraint("Equal", 1, 11),
    Sketcher.Constraint("Equal", 20, 13),
    Sketcher.Constraint("Equal", 17, 21),
    Sketcher.Constraint("Equal", 15, 23),
    Sketcher.Constraint("DistanceX", 6, 2, 6, 1, Q("0.5 in")),
    Sketcher.Constraint("DistanceX", 12, 2, 12, 1, Q("1.9 in")),
    Sketcher.Constraint("DistanceY", 10, 2, 13, 2, Q("1 in")),
    Sketcher.Constraint("DistanceX", 0, 1, 0, 2, Q("2.13 in")),
    Sketcher.Constraint("DistanceX", 2, 1, 2, 2, Q("0.25 in")),
    Sketcher.Constraint("DistanceY", 7, 2, 4, 2, Q("0.5 in")),
    Sketcher.Constraint("DistanceY", 13, 2, 17, 2, Q("0.291 in")),
    Sketcher.Constraint("DistanceX", 4, 1, 4, 2, Q("115.252708 mm")),
    Sketcher.Constraint("DistanceY", 19, 1, 19, 2, Q("63.131908 mm")),
    Sketcher.Constraint("DistanceX", 0, 2, -1, 1, Q("32.518268 mm")),
    Sketcher.Constraint("DistanceY", -1, 1, 0, 2, Q("43.956332 mm")),
])
pad4 = body.newObject("PartDesign::Pad", "Pad003")
pad4.Profile = sketch5
pad4.Length = Q("0.75 in")
pad4.Reversed = True
doc.recompute()

fillet = body.newObject("PartDesign::Fillet", "Fillet")
fillet.Base = (pad4, edges_at(pad4, [
    (-193.95, 9.525, 36.565),
    (-92.97, 9.525, 36.565),
    (-193.95, 9.525, -39.267),
    (-92.97, 9.525, -65.708),
    (-92.97, 9.525, -39.267),
    (-86.62, 9.525, 37.606),
    (-86.62, 9.525, 43.956),
    (-32.518, 9.525, 43.956),
    (-26.168, 9.525, 63.006),
    (-26.168, 9.525, 4.999),
    (89.084, 9.525, -65.708),
    (76.384, 9.525, -65.708),
    (-32.01, 9.525, -7.701),
    (-32.01, 9.525, -65.708),
    (-38.36, 9.525, -46.658),
    (-86.62, 9.525, -46.658),
    (-86.62, 9.525, -40.308),
    (-38.36, 9.525, -40.308),
    (-38.36, 9.525, -7.701),
    (-86.62, 9.525, -7.701),
    (-92.97, 9.525, -32.917),
    (-92.97, 9.525, 30.215),
    (-86.62, 9.525, 4.999),
    (-32.518, 9.525, 4.999),
    (-32.518, 9.525, 37.606),
    (-92.97, 9.525, 63.006),
]))
fillet.Radius = Q("0.25 in")
doc.recompute()

fillet2 = body.newObject("PartDesign::Fillet", "Fillet001")
fillet2.Base = (fillet, edges_at(fillet, [
    (-200.92, 9.525, 30.215),
    (-200.92, 9.525, -32.917),
    (-86.62, 9.525, -72.058),
    (-32.518, 9.525, 69.356),
    (-38.36, 9.525, -72.058),
    (-86.62, 9.525, 69.356),
]))
fillet2.Radius = Q("0.5 in")
doc.recompute()

fillet3 = body.newObject("PartDesign::Fillet", "Fillet002")
fillet3.Base = (fillet2, edges_at(fillet2, [(76.384, 9.525, -7.701)]))
fillet3.Radius = Q("0.5 in")
doc.recompute()

fillet4 = body.newObject("PartDesign::Fillet", "Fillet003")
fillet4.Base = (fillet3, edges_at(fillet3, [(89.084, 9.525, 4.999)]))
fillet4.Radius = Q("1 in")

doc.recompute()
